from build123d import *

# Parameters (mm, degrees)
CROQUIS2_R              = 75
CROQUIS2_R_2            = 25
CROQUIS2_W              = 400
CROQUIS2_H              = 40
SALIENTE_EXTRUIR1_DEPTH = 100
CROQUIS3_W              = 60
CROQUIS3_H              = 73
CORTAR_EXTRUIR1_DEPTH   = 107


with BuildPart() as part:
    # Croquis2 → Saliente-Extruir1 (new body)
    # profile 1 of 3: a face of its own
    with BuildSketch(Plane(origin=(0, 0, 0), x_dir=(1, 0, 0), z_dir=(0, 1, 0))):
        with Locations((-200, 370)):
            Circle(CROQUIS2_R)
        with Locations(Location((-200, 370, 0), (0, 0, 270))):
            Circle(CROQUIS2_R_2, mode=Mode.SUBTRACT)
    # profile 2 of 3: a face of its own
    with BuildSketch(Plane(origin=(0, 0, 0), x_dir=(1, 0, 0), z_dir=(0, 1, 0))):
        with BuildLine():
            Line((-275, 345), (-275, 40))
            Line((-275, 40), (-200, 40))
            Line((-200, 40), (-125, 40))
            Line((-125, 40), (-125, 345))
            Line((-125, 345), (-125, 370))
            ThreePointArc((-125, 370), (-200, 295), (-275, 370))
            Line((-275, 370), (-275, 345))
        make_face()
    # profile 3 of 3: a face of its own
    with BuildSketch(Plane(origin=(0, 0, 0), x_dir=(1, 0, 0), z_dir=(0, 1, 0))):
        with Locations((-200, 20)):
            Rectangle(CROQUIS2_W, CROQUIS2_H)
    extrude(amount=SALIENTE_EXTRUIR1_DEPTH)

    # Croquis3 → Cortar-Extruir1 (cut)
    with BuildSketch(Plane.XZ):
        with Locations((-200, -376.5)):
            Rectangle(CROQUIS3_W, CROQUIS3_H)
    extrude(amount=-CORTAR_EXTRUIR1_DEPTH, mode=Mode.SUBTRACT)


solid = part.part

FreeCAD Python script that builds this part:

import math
import FreeCAD as App
import Part
import Sketcher


def add_polygon(sketch, points):
    """Adds a closed chain of lines whose ends are joined by coincident constraints."""
    first, n = sketch.GeometryCount, len(points)
    for a, b in zip(points, points[1:] + points[:1]):
        sketch.addGeometry(Part.LineSegment(App.Vector(*a, 0), App.Vector(*b, 0)), False)
    for i in range(n):
        sketch.addConstraint(Sketcher.Constraint("Coincident", first + i, 2, first + (i + 1) % n, 1))

doc = App.newDocument("Part")
params = doc.addObject("Spreadsheet::Sheet", "Params")
for row, (alias, value) in enumerate([
    ("sketch1_diameter", "50 mm"),
    ("sketch1_radius", "75 mm"),
    ("sketch1_width", "125 mm"),
    ("sketch1_height", "330 mm"),
    ("sketch1_height2", "40 mm"),
    ("pad1_length", "100 mm"),
    ("sketch2_width", "60 mm"),
    ("sketch2_height", "73 mm"),
    ("pocket1_length", "107 mm"),
], start=1):
    params.set(f"A{row}", alias)
    params.set(f"B{row}", "=" + value)
    params.setAlias(f"B{row}", alias)

body = doc.addObject("PartDesign::Body", "Body")

# Sketch on XZ plane
sketch1 = doc.addObject("Sketcher::SketchObject", "Sketch")
body.addObject(sketch1)
sketch1.AttachmentSupport = (doc.XZ_Plane, [""])
sketch1.MapMode = "FlatFace"
sketch1.addGeometry([
    Part.ArcOfCircle(Part.Circle(App.Vector(-200, -370, 0), App.Vector(0, 0, 1), 75), math.radians(180), math.radians(360)),  # 0
    Part.LineSegment(App.Vector(-275, -370, 0), App.Vector(-275, -40, 0)),  # 1
    Part.LineSegment(App.Vector(-275, -40, 0), App.Vector(-400, -40, 0)),  # 2
    Part.LineSegment(App.Vector(-400, -40, 0), App.Vector(-400, 0, 0)),  # 3
    Part.LineSegment(App.Vector(-400, 0, 0), App.Vector(0, 0, 0)),  # 4
    Part.LineSegment(App.Vector(0, 0, 0), App.Vector(0, -40, 0)),  # 5
    Part.LineSegment(App.Vector(0, -40, 0), App.Vector(-125, -40, 0)),  # 6
    Part.LineSegment(App.Vector(-125, -40, 0), App.Vector(-125, -370, 0)),  # 7
    Part.Circle(App.Vector(-200, -370, 0), App.Vector(0, 0, 1), 25),  # 8
], False)
sketch1.addConstraint([
    Sketcher.Constraint("Tangent", 0, 1, 1, 1),
    Sketcher.Constraint("Coincident", 1, 2, 2, 1),
    Sketcher.Constraint("Coincident", 2, 2, 3, 1),
    Sketcher.Constraint("Coincident", 3, 2, 4, 1),
    Sketcher.Constraint("Coincident", 4, 2, 5, 1),
    Sketcher.Constraint("Coincident", 5, 2, 6, 1),
    Sketcher.Constraint("Coincident", 6, 2, 7, 1),
    Sketcher.Constraint("Tangent", 7, 2, 0, 2),
    Sketcher.Constraint("Vertical", 1),
    Sketcher.Constraint("Horizontal", 2),
    Sketcher.Constraint("Vertical", 3),
    Sketcher.Constraint("Horizontal", 4),
    Sketcher.Constraint("Vertical", 5),
    Sketcher.Constraint("Horizontal", 6),
    Sketcher.Constraint("Vertical", 7),
    Sketcher.Constraint("Coincident", 4, 2, -1, 1),
    Sketcher.Constraint("Coincident", 8, 3, 0, 3),
    Sketcher.Constraint("Horizontal", 2, 2, 5, 2),
    Sketcher.Constraint("Equal", 2, 6),
    Sketcher.Constraint("Diameter", 8, 50.0),
    Sketcher.Constraint("Radius", 0, 75.0),
    Sketcher.Constraint("DistanceX", 2, 2, 2, 1, 125.0),
    Sketcher.Constraint("DistanceY", 1, 1, 1, 2, 330.0),
    Sketcher.Constraint("DistanceY", 3, 1, 3, 2, 40.0),
])
sketch1.setExpression("Constraints[19]", "Params.sketch1_diameter")
sketch1.setExpression("Constraints[20]", "Params.sketch1_radius")
sketch1.setExpression("Constraints[21]", "Params.sketch1_width")
sketch1.setExpression("Constraints[22]", "Params.sketch1_height")
sketch1.setExpression("Constraints[23]", "Params.sketch1_height2")
pad1 = doc.addObject("PartDesign::Pad", "Pad")
body.addObject(pad1)
pad1.Profile = sketch1
pad1.setExpression("Length", "Params.pad1_length")
pad1.Reversed = True

# Sketch on XZ plane
sketch2 = doc.addObject("Sketcher::SketchObject", "Sketch001")
body.addObject(sketch2)
sketch2.AttachmentSupport = (doc.XZ_Plane, [""])
sketch2.MapMode = "FlatFace"
add_polygon(sketch2, [(-230, -340), (-230, -413), (-170, -413), (-170, -340)])  # lines 0-3
sketch2.addConstraint([
    Sketcher.Constraint("Vertical", 0),
    Sketcher.Constraint("Horizontal", 1),
    Sketcher.Constraint("Vertical", 2),
    Sketcher.Constraint("Horizontal", 3),
    Sketcher.Constraint("DistanceX", 1, 1, 1, 2, 60.0),
    Sketcher.Constraint("DistanceY", 0, 2, 0, 1, 73.0),
    Sketcher.Constraint("DistanceX", 0, 2, -1, 1, 230.0),
    Sketcher.Constraint("DistanceY", 0, 2, -1, 1, 413.0),
])
sketch2.setExpression("Constraints[8]", "Params.sketch2_width")
sketch2.setExpression("Constraints[9]", "Params.sketch2_height")
pocket1 = doc.addObject("PartDesign::Pocket", "Pocket")
body.addObject(pocket1)
pocket1.Profile = sketch2
pocket1.setExpression("Length", "Params.pocket1_length")

doc.recompute()
